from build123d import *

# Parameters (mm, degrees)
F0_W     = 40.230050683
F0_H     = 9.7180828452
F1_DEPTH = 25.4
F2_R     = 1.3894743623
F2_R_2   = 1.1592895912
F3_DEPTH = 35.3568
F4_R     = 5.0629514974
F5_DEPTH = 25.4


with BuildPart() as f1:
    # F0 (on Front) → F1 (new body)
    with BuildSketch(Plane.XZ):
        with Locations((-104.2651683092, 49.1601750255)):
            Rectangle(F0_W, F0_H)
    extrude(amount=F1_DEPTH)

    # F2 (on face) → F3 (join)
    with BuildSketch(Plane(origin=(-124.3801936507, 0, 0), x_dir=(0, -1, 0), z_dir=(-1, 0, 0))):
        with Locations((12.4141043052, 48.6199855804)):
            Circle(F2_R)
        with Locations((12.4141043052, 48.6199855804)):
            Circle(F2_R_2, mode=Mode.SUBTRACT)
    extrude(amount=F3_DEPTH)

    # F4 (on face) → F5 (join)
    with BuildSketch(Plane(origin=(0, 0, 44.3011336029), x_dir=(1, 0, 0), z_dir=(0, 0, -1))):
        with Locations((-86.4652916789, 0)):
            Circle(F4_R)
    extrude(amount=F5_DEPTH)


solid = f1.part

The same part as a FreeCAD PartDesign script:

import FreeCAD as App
import Part
import Sketcher

V = App.Vector
Q = App.Units.Quantity

doc = App.newDocument("Part")
body = doc.addObject("PartDesign::Body", "Body")

sketch1 = body.newObject("Sketcher::SketchObject", "Sketch")
sketch1.AttachmentSupport = (doc.getObject("XZ_Plane"), [""])
sketch1.MapMode = "FlatFace"
sketch1.addGeometry(Part.LineSegment(V(-124, 54, 0), V(-124, 44, 0)), False)
sketch1.addGeometry(Part.LineSegment(V(-124, 44, 0), V(-84, 44, 0)), False)
sketch1.addGeometry(Part.LineSegment(V(-84, 44, 0), V(-84, 54, 0)), False)
sketch1.addGeometry(Part.LineSegment(V(-84, 54, 0), V(-124, 54, 0)), False)
sketch1.addConstraint(Sketcher.Constraint("Coincident", 0, 2, 1, 1))
sketch1.addConstraint(Sketcher.Constraint("Coincident", 1, 2, 2, 1))
sketch1.addConstraint(Sketcher.Constraint("Coincident", 2, 2, 3, 1))
sketch1.addConstraint(Sketcher.Constraint("Coincident", 3, 2, 0, 1))
sketch1.addConstraint(Sketcher.Constraint("Vertical", 0))
sketch1.addConstraint(Sketcher.Constraint("Horizontal", 1))
sketch1.addConstraint(Sketcher.Constraint("Vertical", 2))
sketch1.addConstraint(Sketcher.Constraint("Horizontal", 3))
sketch1.addConstraint(Sketcher.Constraint("DistanceX", 1, 1, 1, 2, 40.230051))
sketch1.addConstraint(Sketcher.Constraint("DistanceY", 0, 2, 0, 1, 9.718083))
sketch1.addConstraint(Sketcher.Constraint("DistanceX", 0, 2, -1, 1, 124.380194))
sketch1.addConstraint(Sketcher.Constraint("DistanceY", -1, 1, 0, 2, 44.301134))
pad1 = body.newObject("PartDesign::Pad", "Pad")
pad1.Profile = sketch1
pad1.Length = Q("1 in")

sketch2 = body.newObject("Sketcher::SketchObject", "Sketch001")
sketch2.AttachmentSupport = (doc.getObject("YZ_Plane"), [""])
sketch2.MapMode = "FlatFace"
sketch2.AttachmentOffset = App.Placement(V(0, 0, -124.380194), App.Rotation())
sketch2.addGeometry(Part.Circle(V(-12.4, 48.6, 0), V(0, 0, 1), 1.4), False)
sketch2.addGeometry(Part.Circle(V(-12.4, 48.6, 0), V(0, 0, 1), 1.2), False)
sketch2.addConstraint(Sketcher.Constraint("Coincident", 1, 3, 0, 3))
sketch2.addConstraint(Sketcher.Constraint("Diameter", 0, 2.778949))
sketch2.addConstraint(Sketcher.Constraint("Diameter", 1, 2.318579))
sketch2.addConstraint(Sketcher.Constraint("DistanceX", 0, 3, -1, 1, 12.414104))
sketch2.addConstraint(Sketcher.Constraint("DistanceY", -1, 1, 0, 3, 48.619986))
pad2 = body.newObject("PartDesign::Pad", "Pad001")
pad2.Profile = sketch2
pad2.Length = Q("1.392 in")
pad2.Reversed = True

sketch3 = body.newObject("Sketcher::SketchObject", "Sketch002")
sketch3.AttachmentSupport = (doc.getObject("XY_Plane"), [""])
sketch3.MapMode = "FlatFace"
sketch3.AttachmentOffset = App.Placement(V(0, 0, 44.301134), App.Rotation())
sketch3.addGeometry(Part.Circle(V(-86, 0, 0), V(0, 0, 1), 5), False)
sketch3.addConstraint(Sketcher.Constraint("PointOnObject", 0, 3, -1))
sketch3.addConstraint(Sketcher.Constraint("Diameter", 0, 10.125903))
sketch3.addConstraint(Sketcher.Constraint("DistanceX", 0, 3, -1, 1, 86.465292))
pad3 = body.newObject("PartDesign::Pad", "Pad002")
pad3.Profile = sketch3
pad3.Length = Q("1 in")
pad3.Reversed = True

doc.recompute()
